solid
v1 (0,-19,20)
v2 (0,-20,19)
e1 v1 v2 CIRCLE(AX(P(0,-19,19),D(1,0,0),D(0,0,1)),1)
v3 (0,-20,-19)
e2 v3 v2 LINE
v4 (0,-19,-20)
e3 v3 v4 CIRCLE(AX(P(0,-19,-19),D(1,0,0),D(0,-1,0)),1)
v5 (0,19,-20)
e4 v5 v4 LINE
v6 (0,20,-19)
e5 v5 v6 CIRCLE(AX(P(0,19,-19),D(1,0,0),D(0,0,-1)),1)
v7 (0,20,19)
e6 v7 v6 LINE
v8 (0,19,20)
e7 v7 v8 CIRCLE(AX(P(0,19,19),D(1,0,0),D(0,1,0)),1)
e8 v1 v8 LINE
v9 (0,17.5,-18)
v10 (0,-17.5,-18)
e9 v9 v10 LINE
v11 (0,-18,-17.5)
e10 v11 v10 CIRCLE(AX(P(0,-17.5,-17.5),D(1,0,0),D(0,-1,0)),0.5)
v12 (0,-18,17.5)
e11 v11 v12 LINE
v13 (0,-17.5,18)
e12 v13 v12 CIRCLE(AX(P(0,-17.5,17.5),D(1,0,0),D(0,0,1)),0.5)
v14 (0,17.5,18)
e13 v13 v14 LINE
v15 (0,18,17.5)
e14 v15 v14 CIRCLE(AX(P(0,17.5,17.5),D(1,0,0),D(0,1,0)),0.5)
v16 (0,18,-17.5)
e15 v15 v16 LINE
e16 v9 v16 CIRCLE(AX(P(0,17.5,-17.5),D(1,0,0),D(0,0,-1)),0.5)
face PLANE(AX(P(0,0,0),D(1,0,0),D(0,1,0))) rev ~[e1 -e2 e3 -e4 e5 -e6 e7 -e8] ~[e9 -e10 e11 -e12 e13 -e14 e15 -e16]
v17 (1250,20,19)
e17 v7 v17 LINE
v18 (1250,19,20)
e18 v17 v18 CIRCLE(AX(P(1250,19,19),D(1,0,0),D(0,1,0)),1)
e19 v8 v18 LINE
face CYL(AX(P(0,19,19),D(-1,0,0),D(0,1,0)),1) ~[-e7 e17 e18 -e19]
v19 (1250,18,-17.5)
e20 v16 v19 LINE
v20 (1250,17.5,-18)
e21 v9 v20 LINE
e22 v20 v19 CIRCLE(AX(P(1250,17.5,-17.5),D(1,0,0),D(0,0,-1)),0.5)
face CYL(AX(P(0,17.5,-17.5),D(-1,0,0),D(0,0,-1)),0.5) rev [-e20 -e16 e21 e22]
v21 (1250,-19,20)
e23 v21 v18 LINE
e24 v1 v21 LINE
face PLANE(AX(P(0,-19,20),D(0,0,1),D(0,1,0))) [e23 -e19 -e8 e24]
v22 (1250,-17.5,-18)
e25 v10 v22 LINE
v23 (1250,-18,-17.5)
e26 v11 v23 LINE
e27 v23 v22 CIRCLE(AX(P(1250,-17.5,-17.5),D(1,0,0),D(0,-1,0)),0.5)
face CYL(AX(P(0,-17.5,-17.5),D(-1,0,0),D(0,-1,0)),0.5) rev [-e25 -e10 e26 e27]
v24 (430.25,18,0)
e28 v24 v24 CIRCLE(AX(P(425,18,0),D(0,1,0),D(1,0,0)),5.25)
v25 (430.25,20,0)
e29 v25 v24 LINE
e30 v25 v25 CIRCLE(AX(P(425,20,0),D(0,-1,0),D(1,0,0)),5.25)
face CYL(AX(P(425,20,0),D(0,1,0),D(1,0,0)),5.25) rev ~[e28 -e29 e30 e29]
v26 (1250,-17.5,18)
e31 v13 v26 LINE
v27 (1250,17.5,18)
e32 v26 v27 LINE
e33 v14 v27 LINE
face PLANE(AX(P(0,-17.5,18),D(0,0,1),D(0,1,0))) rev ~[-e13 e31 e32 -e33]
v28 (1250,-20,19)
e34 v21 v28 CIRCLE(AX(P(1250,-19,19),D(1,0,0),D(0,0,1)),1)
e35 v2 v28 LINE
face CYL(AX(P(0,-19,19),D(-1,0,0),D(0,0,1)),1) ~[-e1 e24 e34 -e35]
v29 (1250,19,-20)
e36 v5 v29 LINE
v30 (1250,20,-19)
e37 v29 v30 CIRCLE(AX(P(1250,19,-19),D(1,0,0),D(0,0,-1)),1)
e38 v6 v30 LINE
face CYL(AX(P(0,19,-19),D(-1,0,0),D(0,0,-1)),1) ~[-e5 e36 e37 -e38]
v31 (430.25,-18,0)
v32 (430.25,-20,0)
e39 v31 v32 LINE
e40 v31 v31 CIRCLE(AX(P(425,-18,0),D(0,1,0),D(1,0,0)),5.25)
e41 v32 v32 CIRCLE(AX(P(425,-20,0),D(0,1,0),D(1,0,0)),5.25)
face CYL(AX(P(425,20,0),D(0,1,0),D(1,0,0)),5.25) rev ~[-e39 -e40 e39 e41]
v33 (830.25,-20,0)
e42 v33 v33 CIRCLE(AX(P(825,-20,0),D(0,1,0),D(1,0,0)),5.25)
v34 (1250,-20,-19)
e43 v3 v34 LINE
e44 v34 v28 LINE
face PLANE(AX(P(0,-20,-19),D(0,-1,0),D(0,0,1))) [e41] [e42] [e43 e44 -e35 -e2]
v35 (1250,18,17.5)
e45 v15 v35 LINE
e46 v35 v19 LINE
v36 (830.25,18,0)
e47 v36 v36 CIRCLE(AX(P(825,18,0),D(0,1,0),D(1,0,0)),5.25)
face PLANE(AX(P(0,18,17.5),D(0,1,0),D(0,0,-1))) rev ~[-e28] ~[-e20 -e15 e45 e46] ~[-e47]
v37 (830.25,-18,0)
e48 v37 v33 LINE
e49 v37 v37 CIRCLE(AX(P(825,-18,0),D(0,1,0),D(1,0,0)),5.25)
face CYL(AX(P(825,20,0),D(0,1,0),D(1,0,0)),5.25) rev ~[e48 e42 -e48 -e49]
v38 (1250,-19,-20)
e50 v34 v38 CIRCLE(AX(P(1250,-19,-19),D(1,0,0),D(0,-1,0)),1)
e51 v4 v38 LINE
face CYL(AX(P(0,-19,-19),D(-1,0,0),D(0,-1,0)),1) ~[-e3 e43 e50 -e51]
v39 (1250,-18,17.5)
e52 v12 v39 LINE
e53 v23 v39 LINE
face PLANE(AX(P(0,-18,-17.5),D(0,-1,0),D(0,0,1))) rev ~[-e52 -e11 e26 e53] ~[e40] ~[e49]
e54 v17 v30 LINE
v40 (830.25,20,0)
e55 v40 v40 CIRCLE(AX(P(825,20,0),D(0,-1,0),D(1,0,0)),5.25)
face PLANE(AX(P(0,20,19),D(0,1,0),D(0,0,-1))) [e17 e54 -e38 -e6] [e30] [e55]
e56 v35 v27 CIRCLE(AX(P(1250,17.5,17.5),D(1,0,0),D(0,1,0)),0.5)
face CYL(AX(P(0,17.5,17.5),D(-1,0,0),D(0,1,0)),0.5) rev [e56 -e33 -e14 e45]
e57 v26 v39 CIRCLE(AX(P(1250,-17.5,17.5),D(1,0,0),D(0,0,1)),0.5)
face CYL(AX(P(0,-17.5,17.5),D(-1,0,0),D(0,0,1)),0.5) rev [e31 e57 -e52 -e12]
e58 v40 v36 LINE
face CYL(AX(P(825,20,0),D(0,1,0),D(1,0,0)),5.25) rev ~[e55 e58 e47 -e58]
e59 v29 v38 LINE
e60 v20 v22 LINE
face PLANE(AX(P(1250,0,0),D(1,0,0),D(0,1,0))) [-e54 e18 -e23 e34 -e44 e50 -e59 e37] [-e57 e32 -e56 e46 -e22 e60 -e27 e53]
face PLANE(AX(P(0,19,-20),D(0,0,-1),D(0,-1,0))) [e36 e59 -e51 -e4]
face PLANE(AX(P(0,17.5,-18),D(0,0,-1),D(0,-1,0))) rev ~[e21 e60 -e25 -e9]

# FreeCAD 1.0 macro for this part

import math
import FreeCAD as App
import Part
import Sketcher

V = App.Vector

doc = App.newDocument("Part")
body = doc.addObject("PartDesign::Body", "Body")

sketch1 = body.newObject("Sketcher::SketchObject", "Sketch")
sketch1.AttachmentSupport = (doc.getObject("YZ_Plane"), [""])
sketch1.MapMode = "FlatFace"
sketch1.addGeometry([
    Part.LineSegment(V(19, 20, 0), V(-19, 20, 0)),
    Part.ArcOfCircle(Part.Circle(V(-19, 19, 0), V(0, 0, 1), 1), math.radians(90), math.radians(180)),
    Part.LineSegment(V(-20, 19, 0), V(-20, -19, 0)),
    Part.ArcOfCircle(Part.Circle(V(-19, -19, 0), V(0, 0, 1), 1), math.radians(180), math.radians(270)),
    Part.LineSegment(V(-19, -20, 0), V(19, -20, 0)),
    Part.ArcOfCircle(Part.Circle(V(19, -19, 0), V(0, 0, 1), 1), math.radians(-90), math.radians(0)),
    Part.LineSegment(V(20, -19, 0), V(20, 19, 0)),
    Part.ArcOfCircle(Part.Circle(V(19, 19, 0), V(0, 0, 1), 1), math.radians(0), math.radians(90)),
    Part.ArcOfCircle(Part.Circle(V(-17.5, 17.5, 0), V(0, 0, 1), 0.5), math.radians(90), math.radians(180)),
    Part.LineSegment(V(-17.5, 18, 0), V(17.5, 18, 0)),
    Part.ArcOfCircle(Part.Circle(V(17.5, 17.5, 0), V(0, 0, 1), 0.5), math.radians(0), math.radians(90)),
    Part.LineSegment(V(18, 17.5, 0), V(18, -17.5, 0)),
    Part.ArcOfCircle(Part.Circle(V(17.5, -17.5, 0), V(0, 0, 1), 0.5), math.radians(-90), math.radians(0)),
    Part.LineSegment(V(17.5, -18, 0), V(-17.5, -18, 0)),
    Part.ArcOfCircle(Part.Circle(V(-17.5, -17.5, 0), V(0, 0, 1), 0.5), math.radians(180), math.radians(270)),
    Part.LineSegment(V(-18, -17.5, 0), V(-18, 17.5, 0)),
], False)
sketch1.addConstraint([
    Sketcher.Constraint("Tangent", 0, 2, 1, 1),
    Sketcher.Constraint("Tangent", 1, 2, 2, 1),
    Sketcher.Constraint("Tangent", 2, 2, 3, 1),
    Sketcher.Constraint("Tangent", 3, 2, 4, 1),
    Sketcher.Constraint("Tangent", 4, 2, 5, 1),
    Sketcher.Constraint("Tangent", 5, 2, 6, 1),
    Sketcher.Constraint("Tangent", 6, 2, 7, 1),
    Sketcher.Constraint("Tangent", 7, 2, 0, 1),
    Sketcher.Constraint("Tangent", 8, 1, 9, 1),
    Sketcher.Constraint("Tangent", 9, 2, 10, 2),
    Sketcher.Constraint("Tangent", 10, 1, 11, 1),
    Sketcher.Constraint("Tangent", 11, 2, 12, 2),
    Sketcher.Constraint("Tangent", 12, 1, 13, 1),
    Sketcher.Constraint("Tangent", 13, 2, 14, 2),
    Sketcher.Constraint("Tangent", 14, 1, 15, 1),
    Sketcher.Constraint("Tangent", 15, 2, 8, 2),
    Sketcher.Constraint("Horizontal", 0),
    Sketcher.Constraint("Vertical", 2),
    Sketcher.Constraint("Horizontal", 4),
    Sketcher.Constraint("Vertical", 6),
    Sketcher.Constraint("Horizontal", 9),
    Sketcher.Constraint("Vertical", 11),
    Sketcher.Constraint("Horizontal", 13),
    Sketcher.Constraint("Vertical", 15),
    Sketcher.Constraint("Equal", 1, 3),
    Sketcher.Constraint("Equal", 3, 5),
    Sketcher.Constraint("Equal", 5, 7),
    Sketcher.Constraint("Equal", 8, 10),
    Sketcher.Constraint("Equal", 10, 12),
    Sketcher.Constraint("Equal", 12, 14),
    Sketcher.Constraint("Symmetric", 1, 3, 5, 3, -1, 1),
    Sketcher.Constraint("Symmetric", 8, 3, 12, 3, -1, 1),
    Sketcher.Constraint("Equal", 4, 2),
    Sketcher.Constraint("Equal", 13, 11),
    Sketcher.Constraint("Radius", 1, 1.0),
    Sketcher.Constraint("Radius", 8, 0.5),
    Sketcher.Constraint("DistanceY", 8, 1, 1, 3, 1.0),
    Sketcher.Constraint("DistanceX", 0, 2, 0, 1, 38.0),
])
pad1 = body.newObject("PartDesign::Pad", "Pad")
pad1.Profile = sketch1
pad1.Length = 1250

sketch2 = body.newObject("Sketcher::SketchObject", "Sketch001")
sketch2.AttachmentSupport = (doc.getObject("XZ_Plane"), [""])
sketch2.MapMode = "FlatFace"
sketch2.AttachmentOffset = App.Placement(V(0, 0, -20), App.Rotation())
sketch2.addGeometry([
    Part.Circle(V(425, 0, 0), V(0, 0, 1), 5),
    Part.Circle(V(825, 0, 0), V(0, 0, 1), 5),
], False)
sketch2.addConstraint([
    Sketcher.Constraint("Equal", 0, 1),
    Sketcher.Constraint("PointOnObject", 0, 3, -1),
    Sketcher.Constraint("PointOnObject", 1, 3, -1),
    Sketcher.Constraint("Diameter", 0, 10.5),
    Sketcher.Constraint("DistanceX", -1, 1, 0, 3, 425.0),
    Sketcher.Constraint("DistanceX", 0, 3, 1, 3, 400.0),
])
pocket1 = body.newObject("PartDesign::Pocket", "Pocket")
pocket1.Profile = sketch2
pocket1.Length = 1250
pocket1.Reversed = True

doc.recompute()
